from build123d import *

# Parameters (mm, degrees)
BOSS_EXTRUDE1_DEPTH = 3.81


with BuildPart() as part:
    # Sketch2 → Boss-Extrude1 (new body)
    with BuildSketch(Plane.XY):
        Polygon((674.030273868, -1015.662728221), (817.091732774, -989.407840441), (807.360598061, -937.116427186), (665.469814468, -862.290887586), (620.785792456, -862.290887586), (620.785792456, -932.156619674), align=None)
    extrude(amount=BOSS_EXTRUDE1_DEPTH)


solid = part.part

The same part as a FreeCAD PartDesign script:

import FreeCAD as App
import Part
import Sketcher
from FreeCAD import Vector
Q = App.Units.Quantity

doc = App.newDocument("Part")
params = doc.addObject("Spreadsheet::Sheet", "Params")
for row, (alias, value) in enumerate([
    ("pad1_length", "0.15 in"),
], start=1):
    params.set(f"A{row}", alias)
    params.set(f"B{row}", "=" + value)
    params.setAlias(f"B{row}", alias)

body = doc.addObject("PartDesign::Body", "Body")

sketch1 = doc.addObject("Sketcher::SketchObject", "Sketch")
body.addObject(sketch1)
sketch1.AttachmentSupport = (doc.XY_Plane, [""])
sketch1.MapMode = "FlatFace"
sketch1.addGeometry([
    Part.LineSegment(Vector(674, -1016, 0), Vector(817, -989, 0)),
    Part.LineSegment(Vector(817, -989, 0), Vector(807, -937, 0)),
    Part.LineSegment(Vector(807, -937, 0), Vector(665, -862, 0)),
    Part.LineSegment(Vector(665, -862, 0), Vector(621, -862, 0)),
    Part.LineSegment(Vector(621, -862, 0), Vector(621, -932, 0)),
    Part.LineSegment(Vector(621, -932, 0), Vector(674, -1016, 0)),
], False)
sketch1.addConstraint([
    Sketcher.Constraint("Coincident", 0, 2, 1, 1),
    Sketcher.Constraint("Coincident", 1, 2, 2, 1),
    Sketcher.Constraint("Coincident", 2, 2, 3, 1),
    Sketcher.Constraint("Coincident", 3, 2, 4, 1),
    Sketcher.Constraint("Coincident", 4, 2, 5, 1),
    Sketcher.Constraint("Coincident", 5, 2, 0, 1),
    Sketcher.Constraint("Horizontal", 3),
    Sketcher.Constraint("Vertical", 4),
    Sketcher.Constraint("DistanceX", -1, 1, 1, 2, Q("807.360598 mm")),
    Sketcher.Constraint("DistanceY", 5, 2, 1, 2, Q("78.546301 mm")),
    Sketcher.Constraint("Distance", 0, Q("145.450679 mm")),
    Sketcher.Constraint("Distance", 1, Q("53.189161 mm")),
    Sketcher.Constraint("Distance", 2, Q("160.41152 mm")),
    Sketcher.Constraint("DistanceX", 3, 2, 3, 1, Q("44.684022 mm")),
    Sketcher.Constraint("DistanceY", 4, 2, 4, 1, Q("69.865732 mm")),
    Sketcher.Constraint("DistanceY", 0, 2, -1, 1, Q("989.40784 mm")),
    Sketcher.Constraint("DistanceY", 4, 2, -1, 1, Q("932.15662 mm")),
    Sketcher.Constraint("DistanceY", 5, 2, -1, 1, Q("1015.662728 mm")),
])
pad1 = doc.addObject("PartDesign::Pad", "Pad")
body.addObject(pad1)
pad1.Profile = sketch1
pad1.setExpression("Length", "Params.pad1_length")

doc.recompute()
